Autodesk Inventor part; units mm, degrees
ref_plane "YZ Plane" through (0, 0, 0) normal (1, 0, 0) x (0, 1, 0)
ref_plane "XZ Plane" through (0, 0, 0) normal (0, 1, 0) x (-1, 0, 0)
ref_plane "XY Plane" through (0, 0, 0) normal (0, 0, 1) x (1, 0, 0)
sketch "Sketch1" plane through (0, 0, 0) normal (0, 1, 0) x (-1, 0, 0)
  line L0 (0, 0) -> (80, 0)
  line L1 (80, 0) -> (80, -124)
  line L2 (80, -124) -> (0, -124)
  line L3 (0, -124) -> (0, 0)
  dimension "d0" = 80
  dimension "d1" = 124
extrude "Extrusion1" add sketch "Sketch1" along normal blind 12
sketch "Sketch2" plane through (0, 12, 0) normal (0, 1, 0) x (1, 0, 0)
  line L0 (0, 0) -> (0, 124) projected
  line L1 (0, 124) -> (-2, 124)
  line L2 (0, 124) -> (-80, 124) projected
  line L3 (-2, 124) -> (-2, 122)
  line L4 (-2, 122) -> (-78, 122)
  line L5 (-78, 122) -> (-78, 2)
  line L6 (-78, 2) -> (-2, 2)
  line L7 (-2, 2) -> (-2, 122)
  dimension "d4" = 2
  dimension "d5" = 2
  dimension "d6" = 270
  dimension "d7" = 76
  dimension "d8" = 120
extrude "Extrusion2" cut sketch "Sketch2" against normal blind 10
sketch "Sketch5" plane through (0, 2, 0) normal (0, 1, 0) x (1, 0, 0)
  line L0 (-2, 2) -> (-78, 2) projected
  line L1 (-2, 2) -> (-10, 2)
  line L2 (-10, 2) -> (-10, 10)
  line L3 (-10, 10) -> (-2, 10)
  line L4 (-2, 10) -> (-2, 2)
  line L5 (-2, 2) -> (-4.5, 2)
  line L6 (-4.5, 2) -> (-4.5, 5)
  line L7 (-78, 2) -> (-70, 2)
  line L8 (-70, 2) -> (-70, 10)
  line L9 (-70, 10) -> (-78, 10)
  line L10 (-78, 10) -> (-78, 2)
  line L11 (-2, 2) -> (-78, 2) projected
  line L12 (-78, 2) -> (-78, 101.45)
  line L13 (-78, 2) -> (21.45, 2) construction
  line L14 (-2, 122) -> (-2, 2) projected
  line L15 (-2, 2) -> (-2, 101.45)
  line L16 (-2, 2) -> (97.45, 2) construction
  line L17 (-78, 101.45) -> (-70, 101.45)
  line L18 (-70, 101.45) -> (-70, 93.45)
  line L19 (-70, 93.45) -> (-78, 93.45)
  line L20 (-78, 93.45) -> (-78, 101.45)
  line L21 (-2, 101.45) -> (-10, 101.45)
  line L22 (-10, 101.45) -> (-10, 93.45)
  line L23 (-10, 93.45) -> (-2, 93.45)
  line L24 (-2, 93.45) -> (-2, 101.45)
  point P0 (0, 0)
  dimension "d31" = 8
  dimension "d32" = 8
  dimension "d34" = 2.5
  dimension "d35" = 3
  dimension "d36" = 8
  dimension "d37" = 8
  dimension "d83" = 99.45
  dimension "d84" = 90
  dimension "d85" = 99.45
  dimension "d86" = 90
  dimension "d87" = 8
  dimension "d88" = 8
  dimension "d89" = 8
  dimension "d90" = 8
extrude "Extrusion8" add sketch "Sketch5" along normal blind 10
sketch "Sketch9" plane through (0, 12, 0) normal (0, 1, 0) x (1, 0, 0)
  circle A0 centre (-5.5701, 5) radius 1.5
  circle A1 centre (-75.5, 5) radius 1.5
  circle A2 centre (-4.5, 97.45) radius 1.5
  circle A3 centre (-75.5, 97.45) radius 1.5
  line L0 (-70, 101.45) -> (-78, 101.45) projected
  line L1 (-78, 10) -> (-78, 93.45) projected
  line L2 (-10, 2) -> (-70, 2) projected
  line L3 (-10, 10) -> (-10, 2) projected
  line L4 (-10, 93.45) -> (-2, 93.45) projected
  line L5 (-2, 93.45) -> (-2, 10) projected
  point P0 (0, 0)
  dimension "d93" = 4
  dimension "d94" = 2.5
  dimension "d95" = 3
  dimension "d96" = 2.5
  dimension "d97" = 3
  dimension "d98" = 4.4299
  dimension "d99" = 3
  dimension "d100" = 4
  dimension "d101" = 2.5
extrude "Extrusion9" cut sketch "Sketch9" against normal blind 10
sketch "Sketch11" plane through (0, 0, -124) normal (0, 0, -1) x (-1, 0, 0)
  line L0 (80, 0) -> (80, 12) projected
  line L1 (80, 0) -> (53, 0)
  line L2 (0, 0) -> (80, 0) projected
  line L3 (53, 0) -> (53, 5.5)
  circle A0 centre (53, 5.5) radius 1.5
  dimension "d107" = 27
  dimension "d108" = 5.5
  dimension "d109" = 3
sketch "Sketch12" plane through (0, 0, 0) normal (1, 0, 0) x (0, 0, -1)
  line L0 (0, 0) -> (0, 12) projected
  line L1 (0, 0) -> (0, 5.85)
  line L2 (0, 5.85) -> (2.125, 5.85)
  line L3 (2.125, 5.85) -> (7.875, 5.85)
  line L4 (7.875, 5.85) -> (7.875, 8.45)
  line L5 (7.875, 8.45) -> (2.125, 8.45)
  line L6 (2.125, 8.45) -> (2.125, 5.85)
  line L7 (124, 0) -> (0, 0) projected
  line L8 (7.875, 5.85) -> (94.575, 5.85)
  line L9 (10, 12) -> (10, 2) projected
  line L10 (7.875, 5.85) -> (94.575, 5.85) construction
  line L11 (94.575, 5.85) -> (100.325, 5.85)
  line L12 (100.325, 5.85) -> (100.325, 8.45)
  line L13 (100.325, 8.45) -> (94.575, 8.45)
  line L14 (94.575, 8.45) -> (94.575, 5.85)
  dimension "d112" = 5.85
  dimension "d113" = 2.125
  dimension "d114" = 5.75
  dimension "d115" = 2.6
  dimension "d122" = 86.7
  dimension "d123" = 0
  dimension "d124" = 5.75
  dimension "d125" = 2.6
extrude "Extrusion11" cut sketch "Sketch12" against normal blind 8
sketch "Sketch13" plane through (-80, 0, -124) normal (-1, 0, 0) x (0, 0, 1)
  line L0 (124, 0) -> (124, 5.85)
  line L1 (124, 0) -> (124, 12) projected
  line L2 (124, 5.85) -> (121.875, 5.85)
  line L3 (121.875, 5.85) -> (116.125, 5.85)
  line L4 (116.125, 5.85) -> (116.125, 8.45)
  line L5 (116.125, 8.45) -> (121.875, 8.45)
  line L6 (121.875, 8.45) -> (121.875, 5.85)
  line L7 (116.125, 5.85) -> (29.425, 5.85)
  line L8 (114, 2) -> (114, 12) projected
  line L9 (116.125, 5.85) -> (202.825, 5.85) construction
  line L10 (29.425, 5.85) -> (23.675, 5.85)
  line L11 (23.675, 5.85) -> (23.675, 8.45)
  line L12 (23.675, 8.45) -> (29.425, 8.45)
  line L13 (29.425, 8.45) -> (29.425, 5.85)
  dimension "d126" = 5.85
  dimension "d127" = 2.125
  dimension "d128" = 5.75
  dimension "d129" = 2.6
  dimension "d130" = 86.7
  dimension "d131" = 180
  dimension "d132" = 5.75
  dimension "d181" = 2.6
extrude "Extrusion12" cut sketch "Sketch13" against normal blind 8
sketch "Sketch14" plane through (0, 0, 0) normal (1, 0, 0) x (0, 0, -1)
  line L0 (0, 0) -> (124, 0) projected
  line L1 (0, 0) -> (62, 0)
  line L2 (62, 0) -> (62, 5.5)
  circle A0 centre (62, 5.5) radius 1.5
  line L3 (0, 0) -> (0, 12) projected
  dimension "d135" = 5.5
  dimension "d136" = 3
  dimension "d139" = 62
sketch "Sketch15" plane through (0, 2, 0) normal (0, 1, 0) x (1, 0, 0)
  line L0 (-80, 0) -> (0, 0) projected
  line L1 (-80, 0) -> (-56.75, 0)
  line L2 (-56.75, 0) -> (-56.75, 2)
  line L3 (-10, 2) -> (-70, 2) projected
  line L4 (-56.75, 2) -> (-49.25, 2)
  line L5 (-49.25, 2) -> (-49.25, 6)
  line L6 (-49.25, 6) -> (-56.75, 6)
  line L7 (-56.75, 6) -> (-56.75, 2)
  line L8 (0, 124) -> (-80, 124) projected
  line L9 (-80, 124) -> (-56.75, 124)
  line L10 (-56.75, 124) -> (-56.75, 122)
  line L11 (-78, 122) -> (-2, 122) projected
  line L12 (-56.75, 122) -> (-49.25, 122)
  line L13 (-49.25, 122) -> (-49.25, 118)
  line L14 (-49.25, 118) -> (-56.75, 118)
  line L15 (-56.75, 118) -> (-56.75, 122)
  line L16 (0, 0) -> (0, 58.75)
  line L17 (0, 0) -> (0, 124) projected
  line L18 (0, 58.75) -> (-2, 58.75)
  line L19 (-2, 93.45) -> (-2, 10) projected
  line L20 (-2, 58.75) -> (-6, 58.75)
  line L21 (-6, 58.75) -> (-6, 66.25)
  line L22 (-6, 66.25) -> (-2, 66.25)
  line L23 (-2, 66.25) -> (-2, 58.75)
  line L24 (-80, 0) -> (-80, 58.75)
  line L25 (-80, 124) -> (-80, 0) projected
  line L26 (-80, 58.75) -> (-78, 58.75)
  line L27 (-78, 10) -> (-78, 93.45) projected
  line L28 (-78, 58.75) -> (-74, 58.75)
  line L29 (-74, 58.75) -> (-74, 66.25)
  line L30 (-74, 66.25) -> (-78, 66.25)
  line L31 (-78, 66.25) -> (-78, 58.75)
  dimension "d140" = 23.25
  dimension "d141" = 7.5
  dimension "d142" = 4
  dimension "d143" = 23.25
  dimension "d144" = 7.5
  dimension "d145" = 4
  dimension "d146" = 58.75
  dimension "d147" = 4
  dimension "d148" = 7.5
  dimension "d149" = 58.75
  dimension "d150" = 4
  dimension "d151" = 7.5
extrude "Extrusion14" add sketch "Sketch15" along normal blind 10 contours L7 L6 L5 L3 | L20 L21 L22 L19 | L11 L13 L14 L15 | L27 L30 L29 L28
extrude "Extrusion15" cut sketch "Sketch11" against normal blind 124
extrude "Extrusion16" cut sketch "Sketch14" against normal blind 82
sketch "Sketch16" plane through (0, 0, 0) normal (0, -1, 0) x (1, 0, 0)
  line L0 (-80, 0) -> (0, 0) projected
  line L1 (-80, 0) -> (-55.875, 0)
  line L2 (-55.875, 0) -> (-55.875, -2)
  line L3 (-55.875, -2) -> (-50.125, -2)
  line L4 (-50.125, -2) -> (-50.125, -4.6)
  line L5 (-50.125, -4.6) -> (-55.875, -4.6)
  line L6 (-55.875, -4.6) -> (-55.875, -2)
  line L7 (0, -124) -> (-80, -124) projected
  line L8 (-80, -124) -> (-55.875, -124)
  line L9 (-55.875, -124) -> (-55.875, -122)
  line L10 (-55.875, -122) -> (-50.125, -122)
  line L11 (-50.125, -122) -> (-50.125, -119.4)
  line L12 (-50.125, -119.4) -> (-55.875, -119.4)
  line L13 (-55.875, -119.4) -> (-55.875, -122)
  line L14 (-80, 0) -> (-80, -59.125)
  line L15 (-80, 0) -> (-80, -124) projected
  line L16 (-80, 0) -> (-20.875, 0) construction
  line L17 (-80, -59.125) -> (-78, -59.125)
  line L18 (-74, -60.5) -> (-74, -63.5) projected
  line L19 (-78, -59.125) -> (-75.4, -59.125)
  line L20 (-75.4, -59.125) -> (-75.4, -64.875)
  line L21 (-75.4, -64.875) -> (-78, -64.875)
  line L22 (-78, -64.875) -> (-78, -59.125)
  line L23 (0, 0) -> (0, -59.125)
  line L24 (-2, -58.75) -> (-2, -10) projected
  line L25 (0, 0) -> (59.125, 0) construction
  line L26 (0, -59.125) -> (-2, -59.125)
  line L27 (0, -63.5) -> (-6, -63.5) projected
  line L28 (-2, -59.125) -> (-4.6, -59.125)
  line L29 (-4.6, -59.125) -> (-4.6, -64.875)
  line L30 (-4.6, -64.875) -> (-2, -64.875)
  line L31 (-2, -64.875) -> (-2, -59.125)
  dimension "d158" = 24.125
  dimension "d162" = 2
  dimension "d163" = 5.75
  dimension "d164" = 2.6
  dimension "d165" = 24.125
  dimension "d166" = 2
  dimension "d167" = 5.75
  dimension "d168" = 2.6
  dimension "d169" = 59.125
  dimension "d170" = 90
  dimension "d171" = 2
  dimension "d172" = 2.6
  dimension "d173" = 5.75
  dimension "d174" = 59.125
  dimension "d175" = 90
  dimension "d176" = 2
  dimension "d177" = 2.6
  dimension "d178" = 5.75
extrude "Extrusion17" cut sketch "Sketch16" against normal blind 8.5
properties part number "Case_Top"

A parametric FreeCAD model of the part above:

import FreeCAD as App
import Part
import Sketcher
from FreeCAD import Vector
Q = App.Units.Quantity


def add_polygon(sketch, points):
    """Adds a closed chain of lines whose ends are joined by coincident constraints."""
    first, n = sketch.GeometryCount, len(points)
    for a, b in zip(points, points[1:] + points[:1]):
        sketch.addGeometry(Part.LineSegment(App.Vector(*a, 0), App.Vector(*b, 0)), False)
    for i in range(n):
        sketch.addConstraint(Sketcher.Constraint("Coincident", first + i, 2, first + (i + 1) % n, 1))

doc = App.newDocument("Part")
body = doc.addObject("PartDesign::Body", "Body")

# Sketch on XZ plane
sketch1 = doc.addObject("Sketcher::SketchObject", "Sketch")
body.addObject(sketch1)
sketch1.AttachmentSupport = (doc.XZ_Plane, [""])
sketch1.MapMode = "FlatFace"
add_polygon(sketch1, [(-80, 0), (0, 0), (0, -124), (-80, -124)])  # lines 0-3
sketch1.addConstraint([
    Sketcher.Constraint("Horizontal", 0),
    Sketcher.Constraint("Vertical", 1),
    Sketcher.Constraint("Horizontal", 2),
    Sketcher.Constraint("Vertical", 3),
    Sketcher.Constraint("Coincident", 0, 2, -1, 1),
    Sketcher.Constraint("DistanceX", 0, 1, 0, 2, Q("80 mm")),
    Sketcher.Constraint("DistanceY", 1, 2, 1, 1, Q("124 mm")),
])
pad1 = doc.addObject("PartDesign::Pad", "Pad")
body.addObject(pad1)
pad1.Profile = sketch1
pad1.Length = 12
pad1.Reversed = True

# Sketch on XZ plane
sketch2 = doc.addObject("Sketcher::SketchObject", "Sketch001")
body.addObject(sketch2)
sketch2.AttachmentSupport = (doc.XZ_Plane, [""])
sketch2.MapMode = "FlatFace"
sketch2.AttachmentOffset = App.Placement(Vector(0, 0, -12), App.Rotation())
add_polygon(sketch2, [(-2, -2), (-2, -122), (-78, -122), (-78, -2)])  # lines 0-3
sketch2.addConstraint([
    Sketcher.Constraint("Vertical", 0),
    Sketcher.Constraint("Horizontal", 1),
    Sketcher.Constraint("Vertical", 2),
    Sketcher.Constraint("Horizontal", 3),
    Sketcher.Constraint("DistanceX", 1, 2, 1, 1, Q("76 mm")),
    Sketcher.Constraint("DistanceY", 0, 2, 0, 1, Q("120 mm")),
    Sketcher.Constraint("DistanceX", 0, 2, -1, 1, Q("2 mm")),
    Sketcher.Constraint("DistanceY", 2, 2, -1, 1, Q("2 mm")),
])
pocket1 = doc.addObject("PartDesign::Pocket", "Pocket")
body.addObject(pocket1)
pocket1.Profile = sketch2
pocket1.Length = 10
pocket1.Reversed = True

# Sketch on XZ plane
sketch3 = doc.addObject("Sketcher::SketchObject", "Sketch002")
body.addObject(sketch3)
sketch3.AttachmentSupport = (doc.XZ_Plane, [""])
sketch3.MapMode = "FlatFace"
sketch3.AttachmentOffset = App.Placement(Vector(0, 0, -2), App.Rotation())
add_polygon(sketch3, [(-78, -101.45), (-78, -93.45), (-70, -93.45), (-70, -101.45)])  # lines 0-3
add_polygon(sketch3, [(-78, -2), (-70, -2), (-70, -10), (-78, -10)])  # lines 4-7
add_polygon(sketch3, [(-10, -93.45), (-2, -93.45), (-2, -101.45), (-10, -101.45)])  # lines 8-11
add_polygon(sketch3, [(-10, -2), (-2, -2), (-2, -10), (-10, -10)])  # lines 12-15
sketch3.addConstraint([
    Sketcher.Constraint("Vertical", 0),
    Sketcher.Constraint("Horizontal", 1),
    Sketcher.Constraint("Vertical", 2),
    Sketcher.Constraint("Horizontal", 3),
    Sketcher.Constraint("Horizontal", 4),
    Sketcher.Constraint("Vertical", 5),
    Sketcher.Constraint("Horizontal", 6),
    Sketcher.Constraint("Vertical", 7),
    Sketcher.Constraint("Horizontal", 8),
    Sketcher.Constraint("Vertical", 9),
    Sketcher.Constraint("Horizontal", 10),
    Sketcher.Constraint("Vertical", 11),
    Sketcher.Constraint("Horizontal", 12),
    Sketcher.Constraint("Vertical", 13),
    Sketcher.Constraint("Horizontal", 14),
    Sketcher.Constraint("Vertical", 15),
    Sketcher.Constraint("Horizontal", 1, 2, 8, 2),
    Sketcher.Constraint("Horizontal", 3, 2, 9, 2),
    Sketcher.Constraint("Horizontal", 7, 2, 12, 2),
    Sketcher.Constraint("Horizontal", 6, 2, 13, 2),
    Sketcher.Constraint("Vertical", 2, 2, 4, 2),
    Sketcher.Constraint("Vertical", 3, 2, 6, 2),
    Sketcher.Constraint("Vertical", 9, 2, 12, 2),
    Sketcher.Constraint("Vertical", 11, 2, 14, 2),
    Sketcher.Constraint("Equal", 6, 8),
    Sketcher.Constraint("Equal", 14, 0),
    Sketcher.Constraint("Equal", 2, 5),
    Sketcher.Constraint("DistanceX", 1, 1, 1, 2, Q("8 mm")),
    Sketcher.Constraint("DistanceY", 2, 2, 4, 2, Q("99.45 mm")),
    Sketcher.Constraint("DistanceX", 0, 2, -1, 1, Q("78 mm")),
    Sketcher.Constraint("DistanceY", 4, 2, -1, 1, Q("2 mm")),
    Sketcher.Constraint("DistanceX", 8, 2, -1, 1, Q("2 mm")),
])
pad2 = doc.addObject("PartDesign::Pad", "Pad001")
body.addObject(pad2)
pad2.Profile = sketch3
pad2.Length = 10
pad2.Reversed = True

# Sketch on XZ plane
sketch4 = doc.addObject("Sketcher::SketchObject", "Sketch003")
body.addObject(sketch4)
sketch4.AttachmentSupport = (doc.XZ_Plane, [""])
sketch4.MapMode = "FlatFace"
sketch4.AttachmentOffset = App.Placement(Vector(0, 0, -12), App.Rotation())
sketch4.addGeometry([
    Part.Circle(Vector(-5.5701, -5, 0), Vector(0, 0, 1), 1.5),
    Part.Circle(Vector(-75.5, -5, 0), Vector(0, 0, 1), 1.5),
    Part.Circle(Vector(-4.5, -97.45, 0), Vector(0, 0, 1), 1.5),
    Part.Circle(Vector(-75.5, -97.45, 0), Vector(0, 0, 1), 1.5),
], False)
sketch4.addConstraint([
    Sketcher.Constraint("Equal", 0, 1),
    Sketcher.Constraint("Equal", 1, 2),
    Sketcher.Constraint("Equal", 2, 3),
    Sketcher.Constraint("Horizontal", 0, 3, 1, 3),
    Sketcher.Constraint("Horizontal", 2, 3, 3, 3),
    Sketcher.Constraint("Vertical", 1, 3, 3, 3),
    Sketcher.Constraint("Diameter", 0, Q("3 mm")),
    Sketcher.Constraint("DistanceY", 0, 3, -1, 1, Q("5 mm")),
    Sketcher.Constraint("DistanceX", 1, 3, 2, 3, Q("71 mm")),
    Sketcher.Constraint("DistanceX", 1, 3, -1, 1, Q("75.5 mm")),
    Sketcher.Constraint("DistanceX", 0, 3, -1, 1, Q("5.57 mm")),
    Sketcher.Constraint("DistanceY", 2, 3, -1, 1, Q("97.45 mm")),
])
pocket2 = doc.addObject("PartDesign::Pocket", "Pocket001")
body.addObject(pocket2)
pocket2.Profile = sketch4
pocket2.Length = 10
pocket2.Reversed = True

# Sketch on YZ plane
sketch5 = doc.addObject("Sketcher::SketchObject", "Sketch004")
body.addObject(sketch5)
sketch5.AttachmentSupport = (doc.YZ_Plane, [""])
sketch5.MapMode = "FlatFace"
add_polygon(sketch5, [(8.45, -2.125), (5.85, -2.125), (5.85, -7.875), (8.45, -7.875)])  # lines 0-3
add_polygon(sketch5, [(8.45, -94.575), (5.85, -94.575), (5.85, -100.325), (8.45, -100.325)])  # lines 4-7
sketch5.addConstraint([
    Sketcher.Constraint("Horizontal", 0),
    Sketcher.Constraint("Vertical", 1),
    Sketcher.Constraint("Horizontal", 2),
    Sketcher.Constraint("Vertical", 3),
    Sketcher.Constraint("Horizontal", 4),
    Sketcher.Constraint("Vertical", 5),
    Sketcher.Constraint("Horizontal", 6),
    Sketcher.Constraint("Vertical", 7),
    Sketcher.Constraint("Vertical", 1, 2, 4, 2),
    Sketcher.Constraint("Vertical", 3, 2, 6, 2),
    Sketcher.Constraint("Equal", 3, 5),
    Sketcher.Constraint("DistanceX", 0, 2, 0, 1, Q("2.6 mm")),
    Sketcher.Constraint("DistanceY", 1, 2, 1, 1, Q("5.75 mm")),
    Sketcher.Constraint("DistanceY", 4, 2, 1, 2, Q("86.7 mm")),
    Sketcher.Constraint("DistanceX", -1, 1, 0, 2, Q("5.85 mm")),
    Sketcher.Constraint("DistanceY", 0, 2, -1, 1, Q("2.125 mm")),
])
pocket3 = doc.addObject("PartDesign::Pocket", "Pocket002")
body.addObject(pocket3)
pocket3.Profile = sketch5
pocket3.Length = 8

# Sketch on YZ plane
sketch6 = doc.addObject("Sketcher::SketchObject", "Sketch005")
body.addObject(sketch6)
sketch6.AttachmentSupport = (doc.YZ_Plane, [""])
sketch6.MapMode = "FlatFace"
sketch6.AttachmentOffset = App.Placement(Vector(0, 0, -80), App.Rotation())
add_polygon(sketch6, [(5.85, -100.325), (5.85, -94.575), (8.45, -94.575), (8.45, -100.325)])  # lines 0-3
add_polygon(sketch6, [(5.85, -7.875), (5.85, -2.125), (8.45, -2.125), (8.45, -7.875)])  # lines 4-7
sketch6.addConstraint([
    Sketcher.Constraint("Vertical", 0),
    Sketcher.Constraint("Horizontal", 1),
    Sketcher.Constraint("Vertical", 2),
    Sketcher.Constraint("Horizontal", 3),
    Sketcher.Constraint("Vertical", 4),
    Sketcher.Constraint("Horizontal", 5),
    Sketcher.Constraint("Vertical", 6),
    Sketcher.Constraint("Horizontal", 7),
    Sketcher.Constraint("Vertical", 3, 2, 4, 2),
    Sketcher.Constraint("Vertical", 2, 2, 5, 2),
    Sketcher.Constraint("Equal", 2, 4),
    Sketcher.Constraint("DistanceX", 1, 1, 1, 2, Q("2.6 mm")),
    Sketcher.Constraint("DistanceY", 0, 1, 0, 2, Q("5.75 mm")),
    Sketcher.Constraint("DistanceY", 1, 2, 6, 2, Q("86.7 mm")),
    Sketcher.Constraint("DistanceX", -1, 1, 0, 2, Q("5.85 mm")),
    Sketcher.Constraint("DistanceY", 4, 2, -1, 1, Q("2.125 mm")),
])
pocket4 = doc.addObject("PartDesign::Pocket", "Pocket003")
body.addObject(pocket4)
pocket4.Profile = sketch6
pocket4.Length = 8
pocket4.Reversed = True

# Sketch on XZ plane
sketch7 = doc.addObject("Sketcher::SketchObject", "Sketch006")
body.addObject(sketch7)
sketch7.AttachmentSupport = (doc.XZ_Plane, [""])
sketch7.MapMode = "FlatFace"
sketch7.AttachmentOffset = App.Placement(Vector(0, 0, -2), App.Rotation())
add_polygon(sketch7, [(-56.75, -6), (-56.75, -2), (-49.25, -2), (-49.25, -6)])  # lines 0-3
add_polygon(sketch7, [(-6, -58.75), (-2, -58.75), (-2, -66.25), (-6, -66.25)])  # lines 4-7
add_polygon(sketch7, [(-49.25, -122), (-56.75, -122), (-56.75, -118), (-49.25, -118)])  # lines 8-11
add_polygon(sketch7, [(-78, -66.25), (-78, -58.75), (-74, -58.75), (-74, -66.25)])  # lines 12-15
sketch7.addConstraint([
    Sketcher.Constraint("Vertical", 0),
    Sketcher.Constraint("Horizontal", 1),
    Sketcher.Constraint("Vertical", 2),
    Sketcher.Constraint("Horizontal", 3),
    Sketcher.Constraint("Horizontal", 4),
    Sketcher.Constraint("Vertical", 5),
    Sketcher.Constraint("Horizontal", 6),
    Sketcher.Constraint("Vertical", 7),
    Sketcher.Constraint("Horizontal", 8),
    Sketcher.Constraint("Vertical", 9),
    Sketcher.Constraint("Horizontal", 10),
    Sketcher.Constraint("Vertical", 11),
    Sketcher.Constraint("Vertical", 12),
    Sketcher.Constraint("Horizontal", 13),
    Sketcher.Constraint("Vertical", 14),
    Sketcher.Constraint("Horizontal", 15),
    Sketcher.Constraint("Horizontal", 7, 2, 12, 2),
    Sketcher.Constraint("Horizontal", 6, 2, 14, 2),
    Sketcher.Constraint("Vertical", 3, 2, 8, 2),
    Sketcher.Constraint("Vertical", 2, 2, 10, 2),
    Sketcher.Constraint("Equal", 6, 13),
    Sketcher.Constraint("Equal", 15, 0),
    Sketcher.Constraint("Equal", 10, 5),
    Sketcher.Constraint("Equal", 2, 9),
    Sketcher.Constraint("DistanceX", 4, 1, 4, 2, Q("4 mm")),
    Sketcher.Constraint("DistanceX", 1, 1, 1, 2, Q("7.5 mm")),
    Sketcher.Constraint("DistanceY", 4, 2, -1, 1, Q("58.75 mm")),
    Sketcher.Constraint("DistanceY", 0, 2, -1, 1, Q("2 mm")),
    Sketcher.Constraint("DistanceX", 4, 2, -1, 1, Q("2 mm")),
    Sketcher.Constraint("DistanceY", 8, 2, -1, 1, Q("122 mm")),
    Sketcher.Constraint("DistanceX", 12, 2, -1, 1, Q("78 mm")),
    Sketcher.Constraint("DistanceX", 0, 2, -1, 1, Q("56.75 mm")),
])
pad3 = doc.addObject("PartDesign::Pad", "Pad002")
body.addObject(pad3)
pad3.Profile = sketch7
pad3.Length = 10
pad3.Reversed = True

# Sketch on XY plane
sketch8 = doc.addObject("Sketcher::SketchObject", "Sketch007")
body.addObject(sketch8)
sketch8.AttachmentSupport = (doc.XY_Plane, [""])
sketch8.MapMode = "FlatFace"
sketch8.AttachmentOffset = App.Placement(Vector(0, 0, -124), App.Rotation())
sketch8.addGeometry(Part.Circle(Vector(-53, 5.5, 0), Vector(0, 0, 1), 1.5), False)
sketch8.addConstraint([
    Sketcher.Constraint("Diameter", 0, Q("3 mm")),
    Sketcher.Constraint("DistanceY", -1, 1, 0, 3, Q("5.5 mm")),
    Sketcher.Constraint("DistanceX", 0, 3, -1, 1, Q("53 mm")),
])
pocket5 = doc.addObject("PartDesign::Pocket", "Pocket004")
body.addObject(pocket5)
pocket5.Profile = sketch8
pocket5.Length = 124
pocket5.Reversed = True

# Sketch on YZ plane
sketch9 = doc.addObject("Sketcher::SketchObject", "Sketch008")
body.addObject(sketch9)
sketch9.AttachmentSupport = (doc.YZ_Plane, [""])
sketch9.MapMode = "FlatFace"
sketch9.addGeometry(Part.Circle(Vector(5.5, -62, 0), Vector(0, 0, 1), 1.5), False)
sketch9.addConstraint([
    Sketcher.Constraint("Diameter", 0, Q("3 mm")),
    Sketcher.Constraint("DistanceY", 0, 3, -1, 1, Q("62 mm")),
    Sketcher.Constraint("DistanceX", -1, 1, 0, 3, Q("5.5 mm")),
])
pocket6 = doc.addObject("PartDesign::Pocket", "Pocket005")
body.addObject(pocket6)
pocket6.Profile = sketch9
pocket6.Length = 82

# Sketch on XZ plane
sketch10 = doc.addObject("Sketcher::SketchObject", "Sketch009")
body.addObject(sketch10)
sketch10.AttachmentSupport = (doc.XZ_Plane, [""])
sketch10.MapMode = "FlatFace"
add_polygon(sketch10, [(-2, -59.125), (-4.6, -59.125), (-4.6, -64.875), (-2, -64.875)])  # lines 0-3
add_polygon(sketch10, [(-50.125, -2), (-55.875, -2), (-55.875, -4.6), (-50.125, -4.6)])  # lines 4-7
add_polygon(sketch10, [(-75.4, -59.125), (-78, -59.125), (-78, -64.875), (-75.4, -64.875)])  # lines 8-11
add_polygon(sketch10, [(-55.875, -119.4), (-55.875, -122), (-50.125, -122), (-50.125, -119.4)])  # lines 12-15
sketch10.addConstraint([
    Sketcher.Constraint("Horizontal", 0),
    Sketcher.Constraint("Vertical", 1),
    Sketcher.Constraint("Horizontal", 2),
    Sketcher.Constraint("Vertical", 3),
    Sketcher.Constraint("Horizontal", 4),
    Sketcher.Constraint("Vertical", 5),
    Sketcher.Constraint("Horizontal", 6),
    Sketcher.Constraint("Vertical", 7),
    Sketcher.Constraint("Horizontal", 8),
    Sketcher.Constraint("Vertical", 9),
    Sketcher.Constraint("Horizontal", 10),
    Sketcher.Constraint("Vertical", 11),
    Sketcher.Constraint("Vertical", 12),
    Sketcher.Constraint("Horizontal", 13),
    Sketcher.Constraint("Vertical", 14),
    Sketcher.Constraint("Horizontal", 15),
    Sketcher.Constraint("Horizontal", 3, 2, 8, 2),
    Sketcher.Constraint("Horizontal", 2, 2, 9, 2),
    Sketcher.Constraint("Vertical", 5, 2, 12, 2),
    Sketcher.Constraint("Vertical", 7, 2, 13, 2),
    Sketcher.Constraint("Equal", 2, 8),
    Sketcher.Constraint("Equal", 15, 1),
    Sketcher.Constraint("Equal", 10, 5),
    Sketcher.Constraint("Equal", 7, 12),
    Sketcher.Constraint("DistanceX", 0, 2, 0, 1, Q("2.6 mm")),
    Sketcher.Constraint("DistanceX", 2, 2, -1, 1, Q("2 mm")),
    Sketcher.Constraint("DistanceY", 4, 2, -1, 1, Q("2 mm")),
    Sketcher.Constraint("DistanceX", 4, 2, 4, 1, Q("5.75 mm")),
    Sketcher.Constraint("DistanceY", 0, 2, -1, 1, Q("59.125 mm")),
    Sketcher.Constraint("DistanceX", 8, 2, -1, 1, Q("78 mm")),
    Sketcher.Constraint("DistanceY", 12, 2, -1, 1, Q("122 mm")),
    Sketcher.Constraint("DistanceX", 4, 2, -1, 1, Q("55.875 mm")),
])
pocket7 = doc.addObject("PartDesign::Pocket", "Pocket006")
body.addObject(pocket7)
pocket7.Profile = sketch10
pocket7.Length = 8.5

doc.recompute()
